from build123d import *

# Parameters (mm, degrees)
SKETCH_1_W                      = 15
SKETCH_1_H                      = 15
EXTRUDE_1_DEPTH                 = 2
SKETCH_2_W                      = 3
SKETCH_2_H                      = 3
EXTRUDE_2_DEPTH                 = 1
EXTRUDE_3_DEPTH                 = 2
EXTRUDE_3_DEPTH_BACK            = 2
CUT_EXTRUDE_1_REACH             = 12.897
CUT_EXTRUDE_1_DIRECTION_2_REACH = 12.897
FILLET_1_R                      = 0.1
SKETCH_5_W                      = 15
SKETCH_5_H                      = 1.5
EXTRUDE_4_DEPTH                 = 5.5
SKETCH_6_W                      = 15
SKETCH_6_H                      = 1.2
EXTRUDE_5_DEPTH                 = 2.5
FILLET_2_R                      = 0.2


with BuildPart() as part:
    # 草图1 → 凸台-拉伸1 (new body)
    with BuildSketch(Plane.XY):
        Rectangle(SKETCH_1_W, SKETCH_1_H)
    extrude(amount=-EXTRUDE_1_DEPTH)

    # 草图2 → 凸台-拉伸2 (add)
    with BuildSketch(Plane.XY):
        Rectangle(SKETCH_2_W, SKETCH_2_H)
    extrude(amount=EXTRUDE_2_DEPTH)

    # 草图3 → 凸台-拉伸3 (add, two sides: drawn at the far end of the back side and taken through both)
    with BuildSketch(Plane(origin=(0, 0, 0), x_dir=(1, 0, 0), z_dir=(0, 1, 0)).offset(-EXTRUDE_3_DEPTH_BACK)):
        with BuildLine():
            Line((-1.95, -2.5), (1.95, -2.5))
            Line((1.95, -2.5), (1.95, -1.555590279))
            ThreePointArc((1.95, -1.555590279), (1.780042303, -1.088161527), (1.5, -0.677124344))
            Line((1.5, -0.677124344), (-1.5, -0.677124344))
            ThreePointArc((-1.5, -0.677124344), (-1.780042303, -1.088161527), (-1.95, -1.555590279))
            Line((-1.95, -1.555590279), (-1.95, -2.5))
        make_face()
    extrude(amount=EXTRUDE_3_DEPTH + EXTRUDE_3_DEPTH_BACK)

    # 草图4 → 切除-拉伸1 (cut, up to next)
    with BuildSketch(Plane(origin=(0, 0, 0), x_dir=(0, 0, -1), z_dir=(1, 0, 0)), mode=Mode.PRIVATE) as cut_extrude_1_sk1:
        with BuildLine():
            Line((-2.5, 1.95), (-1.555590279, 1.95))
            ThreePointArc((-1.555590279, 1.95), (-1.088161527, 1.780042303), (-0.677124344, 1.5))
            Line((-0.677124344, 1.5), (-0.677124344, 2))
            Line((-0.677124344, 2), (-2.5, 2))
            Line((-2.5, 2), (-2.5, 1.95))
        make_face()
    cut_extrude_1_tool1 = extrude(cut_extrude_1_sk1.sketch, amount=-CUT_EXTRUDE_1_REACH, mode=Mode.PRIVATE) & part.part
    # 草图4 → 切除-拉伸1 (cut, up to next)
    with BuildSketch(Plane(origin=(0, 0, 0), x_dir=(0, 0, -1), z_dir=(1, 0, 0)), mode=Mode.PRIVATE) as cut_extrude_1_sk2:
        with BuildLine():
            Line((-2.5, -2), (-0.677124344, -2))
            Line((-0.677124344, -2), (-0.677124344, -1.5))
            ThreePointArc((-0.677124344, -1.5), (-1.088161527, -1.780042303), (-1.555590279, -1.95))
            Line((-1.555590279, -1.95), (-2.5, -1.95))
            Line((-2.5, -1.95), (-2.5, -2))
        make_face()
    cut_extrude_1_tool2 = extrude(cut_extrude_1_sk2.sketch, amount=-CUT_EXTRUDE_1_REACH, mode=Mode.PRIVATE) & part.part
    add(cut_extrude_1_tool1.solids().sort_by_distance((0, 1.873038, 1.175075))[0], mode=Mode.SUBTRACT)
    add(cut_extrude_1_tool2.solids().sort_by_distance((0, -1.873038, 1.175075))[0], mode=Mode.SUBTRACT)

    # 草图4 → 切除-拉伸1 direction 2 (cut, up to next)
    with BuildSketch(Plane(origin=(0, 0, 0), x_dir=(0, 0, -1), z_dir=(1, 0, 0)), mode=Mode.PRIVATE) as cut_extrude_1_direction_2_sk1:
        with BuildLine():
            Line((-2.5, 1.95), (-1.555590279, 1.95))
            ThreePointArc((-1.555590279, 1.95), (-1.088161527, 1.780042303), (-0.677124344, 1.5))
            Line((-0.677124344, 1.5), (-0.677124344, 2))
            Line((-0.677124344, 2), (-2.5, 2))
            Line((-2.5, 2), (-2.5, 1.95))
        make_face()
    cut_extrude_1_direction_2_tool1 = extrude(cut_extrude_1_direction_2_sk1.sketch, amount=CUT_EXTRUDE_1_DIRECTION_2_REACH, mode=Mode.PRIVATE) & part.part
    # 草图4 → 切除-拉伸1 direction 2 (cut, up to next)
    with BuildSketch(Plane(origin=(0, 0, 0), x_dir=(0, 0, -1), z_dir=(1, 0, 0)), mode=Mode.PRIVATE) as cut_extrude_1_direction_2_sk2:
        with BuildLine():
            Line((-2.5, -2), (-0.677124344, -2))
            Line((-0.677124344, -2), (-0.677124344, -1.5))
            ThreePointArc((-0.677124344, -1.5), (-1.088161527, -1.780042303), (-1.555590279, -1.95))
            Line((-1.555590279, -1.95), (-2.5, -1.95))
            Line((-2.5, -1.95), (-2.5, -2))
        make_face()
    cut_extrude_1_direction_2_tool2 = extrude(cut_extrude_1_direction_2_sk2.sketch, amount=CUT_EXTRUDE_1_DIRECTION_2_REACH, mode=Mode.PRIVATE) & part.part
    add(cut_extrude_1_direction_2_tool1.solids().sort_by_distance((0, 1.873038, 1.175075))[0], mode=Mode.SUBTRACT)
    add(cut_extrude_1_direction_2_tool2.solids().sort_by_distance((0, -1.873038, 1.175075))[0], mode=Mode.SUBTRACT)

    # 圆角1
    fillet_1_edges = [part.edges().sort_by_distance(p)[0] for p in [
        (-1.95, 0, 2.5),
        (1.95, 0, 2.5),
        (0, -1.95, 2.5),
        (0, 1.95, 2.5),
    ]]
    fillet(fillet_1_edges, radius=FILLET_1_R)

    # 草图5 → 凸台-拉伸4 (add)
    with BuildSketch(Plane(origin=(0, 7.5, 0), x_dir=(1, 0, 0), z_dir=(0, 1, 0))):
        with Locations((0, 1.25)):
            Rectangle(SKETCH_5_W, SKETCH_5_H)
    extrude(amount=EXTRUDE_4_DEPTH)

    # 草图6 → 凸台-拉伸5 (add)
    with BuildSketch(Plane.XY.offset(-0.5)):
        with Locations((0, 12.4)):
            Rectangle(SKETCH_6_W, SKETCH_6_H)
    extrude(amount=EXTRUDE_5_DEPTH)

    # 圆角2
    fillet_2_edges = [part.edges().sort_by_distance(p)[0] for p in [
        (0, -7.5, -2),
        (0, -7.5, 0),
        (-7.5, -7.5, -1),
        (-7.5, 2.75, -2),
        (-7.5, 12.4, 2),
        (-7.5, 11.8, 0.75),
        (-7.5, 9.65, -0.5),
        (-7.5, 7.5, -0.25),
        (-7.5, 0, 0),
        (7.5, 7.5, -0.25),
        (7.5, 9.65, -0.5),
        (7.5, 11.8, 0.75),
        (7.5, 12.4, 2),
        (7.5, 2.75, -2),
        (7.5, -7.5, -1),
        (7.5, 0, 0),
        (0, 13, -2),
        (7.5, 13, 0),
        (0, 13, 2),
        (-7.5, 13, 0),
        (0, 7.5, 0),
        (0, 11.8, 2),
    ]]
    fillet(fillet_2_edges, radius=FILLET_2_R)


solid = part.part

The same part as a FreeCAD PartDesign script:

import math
import FreeCAD as App
import Part
import Sketcher

V = App.Vector


def edges_at(feature, points):
    """Names of the edges that pass closest to the given points."""
    edges = feature.Shape.Edges
    near = lambda p: min(range(len(edges)), key=lambda i: edges[i].distToShape(Part.Vertex(*p))[0])
    return sorted({f"Edge{near(p) + 1}" for p in points})


def add_polygon(sketch, points):
    """Adds a closed chain of lines whose ends are joined by coincident constraints."""
    first, n = sketch.GeometryCount, len(points)
    for a, b in zip(points, points[1:] + points[:1]):
        sketch.addGeometry(Part.LineSegment(App.Vector(*a, 0), App.Vector(*b, 0)), False)
    for i in range(n):
        sketch.addConstraint(Sketcher.Constraint("Coincident", first + i, 2, first + (i + 1) % n, 1))

doc = App.newDocument("Part")
body = doc.addObject("PartDesign::Body", "Body")

# Sketch on XY plane
sketch1 = body.newObject("Sketcher::SketchObject", "Sketch")
sketch1.AttachmentSupport = (doc.getObject("XY_Plane"), [""])
sketch1.MapMode = "FlatFace"
add_polygon(sketch1, [(-8, 8), (-8, -8), (8, -8), (8, 8)])  # lines 0-3
sketch1.addConstraint(Sketcher.Constraint("Vertical", 0))
sketch1.addConstraint(Sketcher.Constraint("Horizontal", 1))
sketch1.addConstraint(Sketcher.Constraint("Vertical", 2))
sketch1.addConstraint(Sketcher.Constraint("Horizontal", 3))
sketch1.addConstraint(Sketcher.Constraint("Symmetric", 0, 2, 2, 2, -1, 1))
sketch1.addConstraint(Sketcher.Constraint("Equal", 3, 0))
sketch1.addConstraint(Sketcher.Constraint("DistanceX", 1, 1, 1, 2, 15.0))
pad1 = body.newObject("PartDesign::Pad", "Pad")
pad1.Profile = sketch1
pad1.Length = 2
pad1.Reversed = True

# Sketch on XY plane
sketch2 = body.newObject("Sketcher::SketchObject", "Sketch001")
sketch2.AttachmentSupport = (doc.getObject("XY_Plane"), [""])
sketch2.MapMode = "FlatFace"
add_polygon(sketch2, [(-1.5, 1.5), (-1.5, -1.5), (1.5, -1.5), (1.5, 1.5)])  # lines 0-3
sketch2.addConstraint(Sketcher.Constraint("Vertical", 0))
sketch2.addConstraint(Sketcher.Constraint("Horizontal", 1))
sketch2.addConstraint(Sketcher.Constraint("Vertical", 2))
sketch2.addConstraint(Sketcher.Constraint("Horizontal", 3))
sketch2.addConstraint(Sketcher.Constraint("Symmetric", 0, 2, 2, 2, -1, 1))
sketch2.addConstraint(Sketcher.Constraint("Equal", 3, 0))
sketch2.addConstraint(Sketcher.Constraint("DistanceX", 1, 1, 1, 2, 3.0))
pad2 = body.newObject("PartDesign::Pad", "Pad001")
pad2.Profile = sketch2
pad2.Length = 1

# Sketch on XZ plane
sketch3 = body.newObject("Sketcher::SketchObject", "Sketch002")
sketch3.AttachmentSupport = (doc.getObject("XZ_Plane"), [""])
sketch3.MapMode = "FlatFace"
sketch3.addGeometry(Part.LineSegment(V(-1.9, 2.5, 0), V(1.9, 2.5, 0)), False)
sketch3.addGeometry(Part.LineSegment(V(1.9, 2.5, 0), V(1.9, 1.6, 0)), False)
sketch3.addGeometry(Part.ArcOfCircle(Part.Circle(V(0, 2, 0), V(0, 0, 1), 2), math.radians(-41), math.radians(-13)), False)
sketch3.addGeometry(Part.LineSegment(V(1.5, 0.7, 0), V(-1.5, 0.7, 0)), False)
sketch3.addGeometry(Part.ArcOfCircle(Part.Circle(V(0, 2, 0), V(0, 0, 1), 2), math.radians(-167), math.radians(-139)), False)
sketch3.addGeometry(Part.LineSegment(V(-1.9, 1.6, 0), V(-1.9, 2.5, 0)), False)
sketch3.addConstraint(Sketcher.Constraint("Coincident", 0, 2, 1, 1))
sketch3.addConstraint(Sketcher.Constraint("Coincident", 1, 2, 2, 2))
sketch3.addConstraint(Sketcher.Constraint("Coincident", 2, 1, 3, 1))
sketch3.addConstraint(Sketcher.Constraint("Coincident", 3, 2, 4, 2))
sketch3.addConstraint(Sketcher.Constraint("Coincident", 4, 1, 5, 1))
sketch3.addConstraint(Sketcher.Constraint("Coincident", 5, 2, 0, 1))
sketch3.addConstraint(Sketcher.Constraint("Horizontal", 0))
sketch3.addConstraint(Sketcher.Constraint("Vertical", 1))
sketch3.addConstraint(Sketcher.Constraint("Horizontal", 3))
sketch3.addConstraint(Sketcher.Constraint("Vertical", 5))
sketch3.addConstraint(Sketcher.Constraint("Coincident", 4, 3, 2, 3))
sketch3.addConstraint(Sketcher.Constraint("Equal", 2, 4))
sketch3.addConstraint(Sketcher.Constraint("Symmetric", 1, 2, 4, 1, -2))
sketch3.addConstraint(Sketcher.Constraint("Radius", 2, 2.0))
sketch3.addConstraint(Sketcher.Constraint("DistanceX", 3, 2, 3, 1, 3.0))
sketch3.addConstraint(Sketcher.Constraint("DistanceX", 0, 1, 0, 2, 3.9))
sketch3.addConstraint(Sketcher.Constraint("DistanceY", -1, 1, 2, 3, 2.0))
sketch3.addConstraint(Sketcher.Constraint("DistanceY", -1, 1, 0, 2, 2.5))
pad3 = body.newObject("PartDesign::Pad", "Pad002")
pad3.Profile = sketch3
pad3.Type = "TwoLengths"
pad3.Length = 2
pad3.Length2 = 2
pad3.Reversed = True

# Sketch on YZ plane
sketch4 = body.newObject("Sketcher::SketchObject", "Sketch003")
sketch4.AttachmentSupport = (doc.getObject("YZ_Plane"), [""])
sketch4.MapMode = "FlatFace"
sketch4.addGeometry(Part.LineSegment(V(1.95, 2.5, 0), V(1.95, 1.56, 0)), False)
sketch4.addGeometry(Part.ArcOfCircle(Part.Circle(V(0, 2, 0), V(0, 0, 1), 2), math.radians(-41), math.radians(-13)), False)
sketch4.addGeometry(Part.LineSegment(V(1.5, 0.68, 0), V(2, 0.68, 0)), False)
sketch4.addGeometry(Part.LineSegment(V(2, 0.68, 0), V(2, 2.5, 0)), False)
sketch4.addGeometry(Part.LineSegment(V(2, 2.5, 0), V(1.95, 2.5, 0)), False)
sketch4.addConstraint(Sketcher.Constraint("Coincident", 0, 2, 1, 2))
sketch4.addConstraint(Sketcher.Constraint("Coincident", 1, 1, 2, 1))
sketch4.addConstraint(Sketcher.Constraint("Coincident", 2, 2, 3, 1))
sketch4.addConstraint(Sketcher.Constraint("Coincident", 3, 2, 4, 1))
sketch4.addConstraint(Sketcher.Constraint("Coincident", 4, 2, 0, 1))
sketch4.addConstraint(Sketcher.Constraint("Vertical", 0))
sketch4.addConstraint(Sketcher.Constraint("Horizontal", 2))
sketch4.addConstraint(Sketcher.Constraint("Vertical", 3))
sketch4.addConstraint(Sketcher.Constraint("Horizontal", 4))
sketch4.addConstraint(Sketcher.Constraint("PointOnObject", 1, 3, -2))
sketch4.addConstraint(Sketcher.Constraint("Radius", 1, 2.0))
sketch4.addConstraint(Sketcher.Constraint("DistanceX", 2, 1, 2, 2, 0.5))
sketch4.addConstraint(Sketcher.Constraint("DistanceY", -1, 1, 1, 3, 2.0))
sketch4.addConstraint(Sketcher.Constraint("DistanceX", -1, 1, 2, 2, 2.0))
sketch4.addConstraint(Sketcher.Constraint("DistanceX", 4, 2, 4, 1, 0.05))
sketch4.addConstraint(Sketcher.Constraint("DistanceY", -1, 1, 3, 2, 2.5))
pocket1 = body.newObject("PartDesign::Pocket", "Pocket")
pocket1.Profile = sketch4
pocket1.Type = "UpToFirst"

# Sketch on YZ plane
sketch5 = body.newObject("Sketcher::SketchObject", "Sketch004")
sketch5.AttachmentSupport = (doc.getObject("YZ_Plane"), [""])
sketch5.MapMode = "FlatFace"
sketch5.addGeometry(Part.LineSegment(V(-2, 2.5, 0), V(-2, 0.68, 0)), False)
sketch5.addGeometry(Part.LineSegment(V(-2, 0.68, 0), V(-1.5, 0.68, 0)), False)
sketch5.addGeometry(Part.ArcOfCircle(Part.Circle(V(0, 2, 0), V(0, 0, 1), 2), math.radians(-167), math.radians(-139)), False)
sketch5.addGeometry(Part.LineSegment(V(-1.95, 1.56, 0), V(-1.95, 2.5, 0)), False)
sketch5.addGeometry(Part.LineSegment(V(-1.95, 2.5, 0), V(-2, 2.5, 0)), False)
sketch5.addConstraint(Sketcher.Constraint("Coincident", 0, 2, 1, 1))
sketch5.addConstraint(Sketcher.Constraint("Coincident", 1, 2, 2, 2))
sketch5.addConstraint(Sketcher.Constraint("Coincident", 2, 1, 3, 1))
sketch5.addConstraint(Sketcher.Constraint("Coincident", 3, 2, 4, 1))
sketch5.addConstraint(Sketcher.Constraint("Coincident", 4, 2, 0, 1))
sketch5.addConstraint(Sketcher.Constraint("Vertical", 0))
sketch5.addConstraint(Sketcher.Constraint("Horizontal", 1))
sketch5.addConstraint(Sketcher.Constraint("Vertical", 3))
sketch5.addConstraint(Sketcher.Constraint("Horizontal", 4))
sketch5.addConstraint(Sketcher.Constraint("PointOnObject", 2, 3, -2))
sketch5.addConstraint(Sketcher.Constraint("Radius", 2, 2.0))
sketch5.addConstraint(Sketcher.Constraint("DistanceX", 1, 1, 1, 2, 0.5))
sketch5.addConstraint(Sketcher.Constraint("DistanceY", -1, 1, 2, 3, 2.0))
sketch5.addConstraint(Sketcher.Constraint("DistanceX", 0, 2, -1, 1, 2.0))
sketch5.addConstraint(Sketcher.Constraint("DistanceX", 4, 2, 4, 1, 0.05))
sketch5.addConstraint(Sketcher.Constraint("DistanceY", -1, 1, 3, 2, 2.5))
pocket2 = body.newObject("PartDesign::Pocket", "Pocket001")
pocket2.Profile = sketch5
pocket2.Type = "UpToFirst"

# Sketch on YZ plane
sketch6 = body.newObject("Sketcher::SketchObject", "Sketch005")
sketch6.AttachmentSupport = (doc.getObject("YZ_Plane"), [""])
sketch6.MapMode = "FlatFace"
sketch6.addGeometry(Part.LineSegment(V(1.95, 2.5, 0), V(1.95, 1.56, 0)), False)
sketch6.addGeometry(Part.ArcOfCircle(Part.Circle(V(0, 2, 0), V(0, 0, 1), 2), math.radians(-41), math.radians(-13)), False)
sketch6.addGeometry(Part.LineSegment(V(1.5, 0.68, 0), V(2, 0.68, 0)), False)
sketch6.addGeometry(Part.LineSegment(V(2, 0.68, 0), V(2, 2.5, 0)), False)
sketch6.addGeometry(Part.LineSegment(V(2, 2.5, 0), V(1.95, 2.5, 0)), False)
sketch6.addConstraint(Sketcher.Constraint("Coincident", 0, 2, 1, 2))
sketch6.addConstraint(Sketcher.Constraint("Coincident", 1, 1, 2, 1))
sketch6.addConstraint(Sketcher.Constraint("Coincident", 2, 2, 3, 1))
sketch6.addConstraint(Sketcher.Constraint("Coincident", 3, 2, 4, 1))
sketch6.addConstraint(Sketcher.Constraint("Coincident", 4, 2, 0, 1))
sketch6.addConstraint(Sketcher.Constraint("Vertical", 0))
sketch6.addConstraint(Sketcher.Constraint("Horizontal", 2))
sketch6.addConstraint(Sketcher.Constraint("Vertical", 3))
sketch6.addConstraint(Sketcher.Constraint("Horizontal", 4))
sketch6.addConstraint(Sketcher.Constraint("PointOnObject", 1, 3, -2))
sketch6.addConstraint(Sketcher.Constraint("Radius", 1, 2.0))
sketch6.addConstraint(Sketcher.Constraint("DistanceX", 2, 1, 2, 2, 0.5))
sketch6.addConstraint(Sketcher.Constraint("DistanceY", -1, 1, 1, 3, 2.0))
sketch6.addConstraint(Sketcher.Constraint("DistanceX", -1, 1, 2, 2, 2.0))
sketch6.addConstraint(Sketcher.Constraint("DistanceX", 4, 2, 4, 1, 0.05))
sketch6.addConstraint(Sketcher.Constraint("DistanceY", -1, 1, 3, 2, 2.5))
pocket3 = body.newObject("PartDesign::Pocket", "Pocket002")
pocket3.Profile = sketch6
pocket3.Type = "UpToFirst"
pocket3.Reversed = True

# Sketch on YZ plane
sketch7 = body.newObject("Sketcher::SketchObject", "Sketch006")
sketch7.AttachmentSupport = (doc.getObject("YZ_Plane"), [""])
sketch7.MapMode = "FlatFace"
sketch7.addGeometry(Part.LineSegment(V(-2, 2.5, 0), V(-2, 0.68, 0)), False)
sketch7.addGeometry(Part.LineSegment(V(-2, 0.68, 0), V(-1.5, 0.68, 0)), False)
sketch7.addGeometry(Part.ArcOfCircle(Part.Circle(V(0, 2, 0), V(0, 0, 1), 2), math.radians(-167), math.radians(-139)), False)
sketch7.addGeometry(Part.LineSegment(V(-1.95, 1.56, 0), V(-1.95, 2.5, 0)), False)
sketch7.addGeometry(Part.LineSegment(V(-1.95, 2.5, 0), V(-2, 2.5, 0)), False)
sketch7.addConstraint(Sketcher.Constraint("Coincident", 0, 2, 1, 1))
sketch7.addConstraint(Sketcher.Constraint("Coincident", 1, 2, 2, 2))
sketch7.addConstraint(Sketcher.Constraint("Coincident", 2, 1, 3, 1))
sketch7.addConstraint(Sketcher.Constraint("Coincident", 3, 2, 4, 1))
sketch7.addConstraint(Sketcher.Constraint("Coincident", 4, 2, 0, 1))
sketch7.addConstraint(Sketcher.Constraint("Vertical", 0))
sketch7.addConstraint(Sketcher.Constraint("Horizontal", 1))
sketch7.addConstraint(Sketcher.Constraint("Vertical", 3))
sketch7.addConstraint(Sketcher.Constraint("Horizontal", 4))
sketch7.addConstraint(Sketcher.Constraint("PointOnObject", 2, 3, -2))
sketch7.addConstraint(Sketcher.Constraint("Radius", 2, 2.0))
sketch7.addConstraint(Sketcher.Constraint("DistanceX", 1, 1, 1, 2, 0.5))
sketch7.addConstraint(Sketcher.Constraint("DistanceY", -1, 1, 2, 3, 2.0))
sketch7.addConstraint(Sketcher.Constraint("DistanceX", 0, 2, -1, 1, 2.0))
sketch7.addConstraint(Sketcher.Constraint("DistanceX", 4, 2, 4, 1, 0.05))
sketch7.addConstraint(Sketcher.Constraint("DistanceY", -1, 1, 3, 2, 2.5))
pocket4 = body.newObject("PartDesign::Pocket", "Pocket003")
pocket4.Profile = sketch7
pocket4.Type = "UpToFirst"
pocket4.Reversed = True
doc.recompute()

fillet = body.newObject("PartDesign::Fillet", "Fillet")
fillet.Base = (pocket4, edges_at(pocket4, [
    (-1.95, 0, 2.5),
    (1.95, 0, 2.5),
    (0, -1.95, 2.5),
    (0, 1.95, 2.5),
]))
fillet.Radius = 0.1

# Sketch on XZ plane
sketch8 = body.newObject("Sketcher::SketchObject", "Sketch007")
sketch8.AttachmentSupport = (doc.getObject("XZ_Plane"), [""])
sketch8.MapMode = "FlatFace"
sketch8.AttachmentOffset = App.Placement(V(0, 0, -7.5), App.Rotation())
add_polygon(sketch8, [(-7.5, -2), (-7.5, -0.5), (7.5, -0.5), (7.5, -2)])  # lines 0-3
sketch8.addConstraint(Sketcher.Constraint("Vertical", 0))
sketch8.addConstraint(Sketcher.Constraint("Horizontal", 1))
sketch8.addConstraint(Sketcher.Constraint("Vertical", 2))
sketch8.addConstraint(Sketcher.Constraint("Horizontal", 3))
sketch8.addConstraint(Sketcher.Constraint("DistanceX", 1, 1, 1, 2, 15.0))
sketch8.addConstraint(Sketcher.Constraint("DistanceY", 0, 1, 0, 2, 1.5))
sketch8.addConstraint(Sketcher.Constraint("DistanceY", 2, 2, -1, 1, 2.0))
sketch8.addConstraint(Sketcher.Constraint("DistanceX", 0, 2, -1, 1, 7.5))
pad4 = body.newObject("PartDesign::Pad", "Pad003")
pad4.Profile = sketch8
pad4.Length = 5.5
pad4.Reversed = True

# Sketch on XY plane
sketch9 = body.newObject("Sketcher::SketchObject", "Sketch008")
sketch9.AttachmentSupport = (doc.getObject("XY_Plane"), [""])
sketch9.MapMode = "FlatFace"
sketch9.AttachmentOffset = App.Placement(V(0, 0, -0.5), App.Rotation())
add_polygon(sketch9, [(-7.5, 13), (-7.5, 11.8), (7.5, 11.8), (7.5, 13)])  # lines 0-3
sketch9.addConstraint(Sketcher.Constraint("Vertical", 0))
sketch9.addConstraint(Sketcher.Constraint("Horizontal", 1))
sketch9.addConstraint(Sketcher.Constraint("Vertical", 2))
sketch9.addConstraint(Sketcher.Constraint("Horizontal", 3))
sketch9.addConstraint(Sketcher.Constraint("DistanceX", 1, 1, 1, 2, 15.0))
sketch9.addConstraint(Sketcher.Constraint("DistanceY", 0, 2, 0, 1, 1.2))
sketch9.addConstraint(Sketcher.Constraint("DistanceY", -1, 1, 2, 2, 13.0))
sketch9.addConstraint(Sketcher.Constraint("DistanceX", 0, 2, -1, 1, 7.5))
pad5 = body.newObject("PartDesign::Pad", "Pad004")
pad5.Profile = sketch9
pad5.Length = 2.5
doc.recompute()

fillet2 = body.newObject("PartDesign::Fillet", "Fillet001")
fillet2.Base = (pad5, edges_at(pad5, [
    (0, -7.5, -2),
    (0, -7.5, 0),
    (-7.5, -7.5, -1),
    (-7.5, 2.75, -2),
    (-7.5, 12.4, 2),
    (-7.5, 11.8, 0.75),
    (-7.5, 9.65, -0.5),
    (-7.5, 7.5, -0.25),
    (-7.5, 0, 0),
    (7.5, 7.5, -0.25),
    (7.5, 9.65, -0.5),
    (7.5, 11.8, 0.75),
    (7.5, 12.4, 2),
    (7.5, 2.75, -2),
    (7.5, -7.5, -1),
    (7.5, 0, 0),
    (0, 13, -2),
    (7.5, 13, 0),
    (0, 13, 2),
    (-7.5, 13, 0),
    (0, 7.5, 0),
    (0, 11.8, 2),
]))
fillet2.Radius = 0.2

doc.recompute()
